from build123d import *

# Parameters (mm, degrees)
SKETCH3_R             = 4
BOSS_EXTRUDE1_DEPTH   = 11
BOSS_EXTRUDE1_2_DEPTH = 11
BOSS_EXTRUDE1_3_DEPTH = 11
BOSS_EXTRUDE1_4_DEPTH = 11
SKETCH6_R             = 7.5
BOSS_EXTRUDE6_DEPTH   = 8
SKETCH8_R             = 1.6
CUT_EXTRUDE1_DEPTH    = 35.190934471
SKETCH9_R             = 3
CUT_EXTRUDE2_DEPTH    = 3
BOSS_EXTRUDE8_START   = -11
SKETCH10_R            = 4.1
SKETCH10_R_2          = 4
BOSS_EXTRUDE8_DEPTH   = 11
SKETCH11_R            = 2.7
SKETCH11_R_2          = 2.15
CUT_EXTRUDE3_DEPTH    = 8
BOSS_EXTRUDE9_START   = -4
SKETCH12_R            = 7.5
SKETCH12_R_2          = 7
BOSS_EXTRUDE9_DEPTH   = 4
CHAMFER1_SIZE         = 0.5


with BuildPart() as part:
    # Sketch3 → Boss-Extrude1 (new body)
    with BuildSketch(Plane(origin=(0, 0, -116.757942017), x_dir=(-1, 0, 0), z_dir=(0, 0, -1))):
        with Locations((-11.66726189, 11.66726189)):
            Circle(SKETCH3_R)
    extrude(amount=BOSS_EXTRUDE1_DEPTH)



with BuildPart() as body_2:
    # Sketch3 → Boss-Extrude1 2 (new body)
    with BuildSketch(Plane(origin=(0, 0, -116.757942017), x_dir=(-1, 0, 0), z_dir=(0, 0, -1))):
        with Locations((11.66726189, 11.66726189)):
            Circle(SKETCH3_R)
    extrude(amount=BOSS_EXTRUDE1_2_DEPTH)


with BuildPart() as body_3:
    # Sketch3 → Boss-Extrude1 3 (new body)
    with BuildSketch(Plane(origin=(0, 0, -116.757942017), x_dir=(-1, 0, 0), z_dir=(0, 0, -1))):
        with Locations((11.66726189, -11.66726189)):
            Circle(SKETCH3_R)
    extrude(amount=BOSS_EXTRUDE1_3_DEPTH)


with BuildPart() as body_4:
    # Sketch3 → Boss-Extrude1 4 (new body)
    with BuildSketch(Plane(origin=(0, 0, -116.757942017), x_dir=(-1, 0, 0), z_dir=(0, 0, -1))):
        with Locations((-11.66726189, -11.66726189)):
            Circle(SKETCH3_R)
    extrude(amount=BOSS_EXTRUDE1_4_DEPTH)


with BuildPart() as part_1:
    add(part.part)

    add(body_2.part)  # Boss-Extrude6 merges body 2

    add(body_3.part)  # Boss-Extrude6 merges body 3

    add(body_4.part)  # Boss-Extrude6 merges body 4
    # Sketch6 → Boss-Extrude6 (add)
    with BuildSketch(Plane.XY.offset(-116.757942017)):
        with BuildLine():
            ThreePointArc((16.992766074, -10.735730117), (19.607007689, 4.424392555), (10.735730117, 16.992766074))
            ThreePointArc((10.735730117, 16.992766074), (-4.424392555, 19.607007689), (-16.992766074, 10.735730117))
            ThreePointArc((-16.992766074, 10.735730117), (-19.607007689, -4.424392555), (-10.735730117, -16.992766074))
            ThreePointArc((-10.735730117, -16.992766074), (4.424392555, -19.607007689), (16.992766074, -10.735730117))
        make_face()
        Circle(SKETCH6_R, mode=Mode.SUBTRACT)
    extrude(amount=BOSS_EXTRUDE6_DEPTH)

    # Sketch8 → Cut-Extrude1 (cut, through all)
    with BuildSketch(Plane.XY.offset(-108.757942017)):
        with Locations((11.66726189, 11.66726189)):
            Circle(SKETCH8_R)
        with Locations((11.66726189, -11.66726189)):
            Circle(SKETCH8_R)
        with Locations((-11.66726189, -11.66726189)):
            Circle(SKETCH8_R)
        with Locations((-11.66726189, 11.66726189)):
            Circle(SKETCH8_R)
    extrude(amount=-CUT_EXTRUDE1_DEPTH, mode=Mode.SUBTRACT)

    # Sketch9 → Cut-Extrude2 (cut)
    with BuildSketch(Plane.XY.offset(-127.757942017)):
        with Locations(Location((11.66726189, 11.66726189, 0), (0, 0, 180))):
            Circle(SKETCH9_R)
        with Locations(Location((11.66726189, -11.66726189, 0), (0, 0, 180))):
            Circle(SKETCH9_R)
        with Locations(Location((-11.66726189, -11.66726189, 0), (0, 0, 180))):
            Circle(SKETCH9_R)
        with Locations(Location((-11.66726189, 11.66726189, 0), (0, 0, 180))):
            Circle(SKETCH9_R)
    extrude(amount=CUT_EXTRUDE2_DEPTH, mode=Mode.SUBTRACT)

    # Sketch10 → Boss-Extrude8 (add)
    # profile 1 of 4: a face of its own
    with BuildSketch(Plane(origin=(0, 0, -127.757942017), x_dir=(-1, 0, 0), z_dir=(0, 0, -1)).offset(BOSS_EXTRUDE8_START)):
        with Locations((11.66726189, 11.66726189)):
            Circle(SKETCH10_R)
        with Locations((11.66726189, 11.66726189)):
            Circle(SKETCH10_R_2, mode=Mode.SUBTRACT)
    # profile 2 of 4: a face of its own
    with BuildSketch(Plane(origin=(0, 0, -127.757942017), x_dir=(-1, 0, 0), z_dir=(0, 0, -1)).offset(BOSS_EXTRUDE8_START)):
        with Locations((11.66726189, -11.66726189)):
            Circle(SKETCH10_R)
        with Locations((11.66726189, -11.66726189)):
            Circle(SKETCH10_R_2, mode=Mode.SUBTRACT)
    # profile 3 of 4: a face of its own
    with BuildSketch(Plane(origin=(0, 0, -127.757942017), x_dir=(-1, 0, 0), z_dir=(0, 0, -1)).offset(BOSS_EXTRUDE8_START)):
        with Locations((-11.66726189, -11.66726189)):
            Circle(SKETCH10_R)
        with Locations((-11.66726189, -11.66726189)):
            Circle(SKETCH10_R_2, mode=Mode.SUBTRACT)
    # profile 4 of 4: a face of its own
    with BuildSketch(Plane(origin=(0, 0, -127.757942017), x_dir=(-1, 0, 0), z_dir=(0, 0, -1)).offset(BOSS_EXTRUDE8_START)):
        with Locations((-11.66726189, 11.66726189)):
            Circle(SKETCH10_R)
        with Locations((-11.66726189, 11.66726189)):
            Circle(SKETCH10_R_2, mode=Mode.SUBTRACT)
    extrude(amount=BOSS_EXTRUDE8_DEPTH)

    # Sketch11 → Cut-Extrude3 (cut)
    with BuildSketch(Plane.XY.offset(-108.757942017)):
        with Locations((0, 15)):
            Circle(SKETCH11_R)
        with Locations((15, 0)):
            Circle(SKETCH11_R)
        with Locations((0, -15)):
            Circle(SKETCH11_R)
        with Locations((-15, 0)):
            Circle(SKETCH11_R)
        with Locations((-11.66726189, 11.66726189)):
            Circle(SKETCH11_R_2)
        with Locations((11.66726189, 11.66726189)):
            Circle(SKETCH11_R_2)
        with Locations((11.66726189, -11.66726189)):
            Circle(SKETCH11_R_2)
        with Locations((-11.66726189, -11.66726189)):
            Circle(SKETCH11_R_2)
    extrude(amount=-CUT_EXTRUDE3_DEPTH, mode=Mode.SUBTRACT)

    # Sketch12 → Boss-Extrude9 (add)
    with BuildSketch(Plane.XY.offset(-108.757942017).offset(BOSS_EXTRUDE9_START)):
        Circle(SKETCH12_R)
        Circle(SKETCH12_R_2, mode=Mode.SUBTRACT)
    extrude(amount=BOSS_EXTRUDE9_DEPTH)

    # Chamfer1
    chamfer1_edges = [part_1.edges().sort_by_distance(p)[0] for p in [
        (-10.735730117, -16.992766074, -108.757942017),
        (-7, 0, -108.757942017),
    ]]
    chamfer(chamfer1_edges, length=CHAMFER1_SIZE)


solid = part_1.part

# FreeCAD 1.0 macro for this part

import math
import FreeCAD as App
import Part
import Sketcher


def edges_at(feature, points):
    """Names of the edges that pass closest to the given points."""
    edges = feature.Shape.Edges
    near = lambda p: min(range(len(edges)), key=lambda i: edges[i].distToShape(Part.Vertex(*p))[0])
    return sorted({f"Edge{near(p) + 1}" for p in points})

doc = App.newDocument("Part")
body = doc.addObject("PartDesign::Body", "Body")

sketch1 = body.newObject("Sketcher::SketchObject", "Sketch")
sketch1.AttachmentSupport = (doc.getObject("XY_Plane"), [""])
sketch1.MapMode = "FlatFace"
sketch1.AttachmentOffset = App.Placement(App.Vector(0, 0, -116.757942), App.Rotation())
sketch1.addGeometry(Part.Circle(App.Vector(11.7, 11.7, 0), App.Vector(0, 0, 1), 4), False)
sketch1.addConstraint([
    Sketcher.Constraint("Diameter", 0, 8.0),
    Sketcher.Constraint("DistanceX", -1, 1, 0, 3, 11.667262),
    Sketcher.Constraint("DistanceY", -1, 1, 0, 3, 11.667262),
])
pad1 = body.newObject("PartDesign::Pad", "Pad")
pad1.Profile = sketch1
pad1.Length = 11
pad1.Reversed = True
body2 = doc.addObject("PartDesign::Body", "Body001")

sketch2 = body2.newObject("Sketcher::SketchObject", "Sketch001")
sketch2.AttachmentSupport = (doc.getObject("XY_Plane001"), [""])
sketch2.MapMode = "FlatFace"
sketch2.AttachmentOffset = App.Placement(App.Vector(0, 0, -116.757942), App.Rotation())
sketch2.addGeometry(Part.Circle(App.Vector(-11.7, 11.7, 0), App.Vector(0, 0, 1), 4), False)
sketch2.addConstraint([
    Sketcher.Constraint("Diameter", 0, 8.0),
    Sketcher.Constraint("DistanceX", 0, 3, -1, 1, 11.667262),
    Sketcher.Constraint("DistanceY", -1, 1, 0, 3, 11.667262),
])
pad2 = body2.newObject("PartDesign::Pad", "Pad001")
pad2.Profile = sketch2
pad2.Length = 11
pad2.Reversed = True
body3 = doc.addObject("PartDesign::Body", "Body002")

sketch3 = body3.newObject("Sketcher::SketchObject", "Sketch002")
sketch3.AttachmentSupport = (doc.getObject("XY_Plane002"), [""])
sketch3.MapMode = "FlatFace"
sketch3.AttachmentOffset = App.Placement(App.Vector(0, 0, -116.757942), App.Rotation())
sketch3.addGeometry(Part.Circle(App.Vector(-11.7, -11.7, 0), App.Vector(0, 0, 1), 4), False)
sketch3.addConstraint([
    Sketcher.Constraint("Diameter", 0, 8.0),
    Sketcher.Constraint("DistanceX", 0, 3, -1, 1, 11.667262),
    Sketcher.Constraint("DistanceY", 0, 3, -1, 1, 11.667262),
])
pad3 = body3.newObject("PartDesign::Pad", "Pad002")
pad3.Profile = sketch3
pad3.Length = 11
pad3.Reversed = True
body4 = doc.addObject("PartDesign::Body", "Body003")

sketch4 = body4.newObject("Sketcher::SketchObject", "Sketch003")
sketch4.AttachmentSupport = (doc.getObject("XY_Plane003"), [""])
sketch4.MapMode = "FlatFace"
sketch4.AttachmentOffset = App.Placement(App.Vector(0, 0, -116.757942), App.Rotation())
sketch4.addGeometry(Part.Circle(App.Vector(11.7, -11.7, 0), App.Vector(0, 0, 1), 4), False)
sketch4.addConstraint([
    Sketcher.Constraint("Diameter", 0, 8.0),
    Sketcher.Constraint("DistanceX", -1, 1, 0, 3, 11.667262),
    Sketcher.Constraint("DistanceY", 0, 3, -1, 1, 11.667262),
])
pad4 = body4.newObject("PartDesign::Pad", "Pad003")
pad4.Profile = sketch4
pad4.Length = 11
pad4.Reversed = True
body.AllowCompound = True
doc.recompute()

boolean = body.newObject("PartDesign::Boolean", "Boolean")
boolean.Type = "Fuse"
boolean.addObjects([body2])
doc.recompute()

boolean2 = body.newObject("PartDesign::Boolean", "Boolean001")
boolean2.Type = "Fuse"
boolean2.addObjects([body3])
doc.recompute()

boolean3 = body.newObject("PartDesign::Boolean", "Boolean002")
boolean3.Type = "Fuse"
boolean3.addObjects([body4])

sketch5 = body.newObject("Sketcher::SketchObject", "Sketch004")
sketch5.AttachmentSupport = (doc.getObject("XY_Plane"), [""])
sketch5.MapMode = "FlatFace"
sketch5.AttachmentOffset = App.Placement(App.Vector(0, 0, -116.757942), App.Rotation())
sketch5.addGeometry([
    Part.ArcOfCircle(Part.Circle(App.Vector(0, 0, 0), App.Vector(0, 0, 1), 20), math.radians(-32), math.radians(58)),
    Part.ArcOfCircle(Part.Circle(App.Vector(0, 0, 0), App.Vector(0, 0, 1), 20), math.radians(58), math.radians(148)),
    Part.ArcOfCircle(Part.Circle(App.Vector(0, 0, 0), App.Vector(0, 0, 1), 20), math.radians(148), math.radians(238)),
    Part.ArcOfCircle(Part.Circle(App.Vector(0, 0, 0), App.Vector(0, 0, 1), 20), math.radians(-122), math.radians(-32)),
    Part.Circle(App.Vector(0, 0, 0), App.Vector(0, 0, 1), 8),
], False)
sketch5.addConstraint([
    Sketcher.Constraint("Tangent", 0, 2, 1, 1),
    Sketcher.Constraint("Tangent", 1, 2, 2, 1),
    Sketcher.Constraint("Tangent", 2, 2, 3, 1),
    Sketcher.Constraint("Tangent", 3, 2, 0, 1),
    Sketcher.Constraint("Coincident", 0, 3, -1, 1),
    Sketcher.Constraint("Coincident", 4, 3, -1, 1),
    Sketcher.Constraint("Equal", 0, 1),
    Sketcher.Constraint("Diameter", 4, 15.0),
    Sketcher.Constraint("Radius", 0, 20.1),
    Sketcher.Constraint("DistanceX", -1, 1, 0, 2, 10.73573),
    Sketcher.Constraint("DistanceY", -1, 1, 1, 2, 10.73573),
    Sketcher.Constraint("DistanceX", 2, 2, -1, 1, 10.73573),
    Sketcher.Constraint("DistanceY", 3, 2, -1, 1, 10.73573),
])
pad5 = body.newObject("PartDesign::Pad", "Pad004")
pad5.Profile = sketch5
pad5.Length = 8

sketch6 = body.newObject("Sketcher::SketchObject", "Sketch005")
sketch6.AttachmentSupport = (doc.getObject("XY_Plane"), [""])
sketch6.MapMode = "FlatFace"
sketch6.AttachmentOffset = App.Placement(App.Vector(0, 0, -108.757942), App.Rotation())
sketch6.addGeometry([
    Part.Circle(App.Vector(11.7, 11.7, 0), App.Vector(0, 0, 1), 1.6),
    Part.Circle(App.Vector(11.7, -11.7, 0), App.Vector(0, 0, 1), 1.6),
    Part.Circle(App.Vector(-11.7, -11.7, 0), App.Vector(0, 0, 1), 1.6),
    Part.Circle(App.Vector(-11.7, 11.7, 0), App.Vector(0, 0, 1), 1.6),
], False)
sketch6.addConstraint([
    Sketcher.Constraint("Equal", 0, 1),
    Sketcher.Constraint("Equal", 1, 2),
    Sketcher.Constraint("Equal", 2, 3),
    Sketcher.Constraint("Symmetric", 0, 3, 2, 3, -1, 1),
    Sketcher.Constraint("Symmetric", 1, 3, 3, 3, -1, 1),
    Sketcher.Constraint("Symmetric", 1, 3, 2, 3, -2),
    Sketcher.Constraint("Diameter", 0, 3.2),
    Sketcher.Constraint("DistanceX", -1, 1, 0, 3, 11.667262),
    Sketcher.Constraint("DistanceY", -1, 1, 0, 3, 11.667262),
])
pocket1 = body.newObject("PartDesign::Pocket", "Pocket")
pocket1.Profile = sketch6
pocket1.Type = "ThroughAll"

sketch7 = body.newObject("Sketcher::SketchObject", "Sketch006")
sketch7.AttachmentSupport = (doc.getObject("XY_Plane"), [""])
sketch7.MapMode = "FlatFace"
sketch7.AttachmentOffset = App.Placement(App.Vector(0, 0, -127.757942), App.Rotation())
sketch7.addGeometry([
    Part.Circle(App.Vector(11.7, 11.7, 0), App.Vector(0, 0, 1), 3),
    Part.Circle(App.Vector(11.7, -11.7, 0), App.Vector(0, 0, 1), 3),
    Part.Circle(App.Vector(-11.7, -11.7, 0), App.Vector(0, 0, 1), 3),
    Part.Circle(App.Vector(-11.7, 11.7, 0), App.Vector(0, 0, 1), 3),
], False)
sketch7.addConstraint([
    Sketcher.Constraint("Equal", 0, 1),
    Sketcher.Constraint("Equal", 1, 2),
    Sketcher.Constraint("Equal", 2, 3),
    Sketcher.Constraint("Symmetric", 0, 3, 2, 3, -1, 1),
    Sketcher.Constraint("Symmetric", 1, 3, 3, 3, -1, 1),
    Sketcher.Constraint("Symmetric", 1, 3, 2, 3, -2),
    Sketcher.Constraint("Diameter", 0, 6.0),
    Sketcher.Constraint("DistanceX", -1, 1, 0, 3, 11.667262),
    Sketcher.Constraint("DistanceY", -1, 1, 0, 3, 11.667262),
])
pocket2 = body.newObject("PartDesign::Pocket", "Pocket001")
pocket2.Profile = sketch7
pocket2.Length = 3
pocket2.Reversed = True

sketch8 = body.newObject("Sketcher::SketchObject", "Sketch007")
sketch8.AttachmentSupport = (doc.getObject("XY_Plane"), [""])
sketch8.MapMode = "FlatFace"
sketch8.AttachmentOffset = App.Placement(App.Vector(0, 0, -116.757942), App.Rotation())
sketch8.addGeometry([
    Part.Circle(App.Vector(-11.7, 11.7, 0), App.Vector(0, 0, 1), 4.1),
    Part.Circle(App.Vector(-11.7, 11.7, 0), App.Vector(0, 0, 1), 4),
    Part.Circle(App.Vector(-11.7, -11.7, 0), App.Vector(0, 0, 1), 4.1),
    Part.Circle(App.Vector(-11.7, -11.7, 0), App.Vector(0, 0, 1), 4),
    Part.Circle(App.Vector(11.7, -11.7, 0), App.Vector(0, 0, 1), 4.1),
    Part.Circle(App.Vector(11.7, -11.7, 0), App.Vector(0, 0, 1), 4),
    Part.Circle(App.Vector(11.7, 11.7, 0), App.Vector(0, 0, 1), 4.1),
    Part.Circle(App.Vector(11.7, 11.7, 0), App.Vector(0, 0, 1), 4),
], False)
sketch8.addConstraint([
    Sketcher.Constraint("Coincident", 1, 3, 0, 3),
    Sketcher.Constraint("Coincident", 3, 3, 2, 3),
    Sketcher.Constraint("Coincident", 5, 3, 4, 3),
    Sketcher.Constraint("Coincident", 7, 3, 6, 3),
    Sketcher.Constraint("Equal", 0, 2),
    Sketcher.Constraint("Equal", 1, 3),
    Sketcher.Constraint("Equal", 2, 4),
    Sketcher.Constraint("Equal", 3, 5),
    Sketcher.Constraint("Equal", 4, 6),
    Sketcher.Constraint("Equal", 5, 7),
    Sketcher.Constraint("Symmetric", 0, 3, 4, 3, -1, 1),
    Sketcher.Constraint("Symmetric", 2, 3, 6, 3, -1, 1),
    Sketcher.Constraint("Symmetric", 2, 3, 4, 3, -2),
    Sketcher.Constraint("Diameter", 1, 8.0),
    Sketcher.Constraint("Diameter", 0, 8.2),
    Sketcher.Constraint("DistanceX", 0, 3, -1, 1, 11.667262),
    Sketcher.Constraint("DistanceY", -1, 1, 0, 3, 11.667262),
])
pad6 = body.newObject("PartDesign::Pad", "Pad005")
pad6.Profile = sketch8
pad6.Length = 11
pad6.Reversed = True

sketch9 = body.newObject("Sketcher::SketchObject", "Sketch008")
sketch9.AttachmentSupport = (doc.getObject("XY_Plane"), [""])
sketch9.MapMode = "FlatFace"
sketch9.AttachmentOffset = App.Placement(App.Vector(0, 0, -108.757942), App.Rotation())
sketch9.addGeometry([
    Part.Circle(App.Vector(0, 15, 0), App.Vector(0, 0, 1), 2.7),
    Part.Circle(App.Vector(15, 0, 0), App.Vector(0, 0, 1), 2.7),
    Part.Circle(App.Vector(0, -15, 0), App.Vector(0, 0, 1), 2.7),
    Part.Circle(App.Vector(-15, 0, 0), App.Vector(0, 0, 1), 2.7),
    Part.Circle(App.Vector(-11.7, 11.7, 0), App.Vector(0, 0, 1), 2.1),
    Part.Circle(App.Vector(11.7, 11.7, 0), App.Vector(0, 0, 1), 2.1),
    Part.Circle(App.Vector(11.7, -11.7, 0), App.Vector(0, 0, 1), 2.1),
    Part.Circle(App.Vector(-11.7, -11.7, 0), App.Vector(0, 0, 1), 2.1),
], False)
sketch9.addConstraint([
    Sketcher.Constraint("Equal", 0, 1),
    Sketcher.Constraint("Equal", 1, 2),
    Sketcher.Constraint("Equal", 2, 3),
    Sketcher.Constraint("Equal", 4, 5),
    Sketcher.Constraint("Equal", 5, 6),
    Sketcher.Constraint("Equal", 6, 7),
    Sketcher.Constraint("Symmetric", 0, 3, 2, 3, -1, 1),
    Sketcher.Constraint("Symmetric", 1, 3, 3, 3, -1, 1),
    Sketcher.Constraint("Symmetric", 4, 3, 6, 3, -1, 1),
    Sketcher.Constraint("Symmetric", 5, 3, 7, 3, -1, 1),
    Sketcher.Constraint("Symmetric", 4, 3, 5, 3, -2),
    Sketcher.Constraint("PointOnObject", 0, 3, -2),
    Sketcher.Constraint("PointOnObject", 1, 3, -1),
    Sketcher.Constraint("Diameter", 0, 5.4),
    Sketcher.Constraint("Diameter", 4, 4.3),
    Sketcher.Constraint("DistanceY", -1, 1, 0, 3, 15.0),
    Sketcher.Constraint("DistanceX", -1, 1, 1, 3, 15.0),
    Sketcher.Constraint("DistanceX", 4, 3, -1, 1, 11.667262),
    Sketcher.Constraint("DistanceY", -1, 1, 4, 3, 11.667262),
])
pocket3 = body.newObject("PartDesign::Pocket", "Pocket002")
pocket3.Profile = sketch9
pocket3.Length = 8

sketch10 = body.newObject("Sketcher::SketchObject", "Sketch009")
sketch10.AttachmentSupport = (doc.getObject("XY_Plane"), [""])
sketch10.MapMode = "FlatFace"
sketch10.AttachmentOffset = App.Placement(App.Vector(0, 0, -112.757942), App.Rotation())
sketch10.addGeometry([
    Part.Circle(App.Vector(0, 0, 0), App.Vector(0, 0, 1), 8),
    Part.Circle(App.Vector(0, 0, 0), App.Vector(0, 0, 1), 7),
], False)
sketch10.addConstraint([
    Sketcher.Constraint("Coincident", 0, 3, -1, 1),
    Sketcher.Constraint("Coincident", 1, 3, -1, 1),
    Sketcher.Constraint("Diameter", 0, 15.0),
    Sketcher.Constraint("Diameter", 1, 14.0),
])
pad7 = body.newObject("PartDesign::Pad", "Pad006")
pad7.Profile = sketch10
pad7.Length = 4
doc.recompute()

chamfer = body.newObject("PartDesign::Chamfer", "Chamfer")
chamfer.Base = (pad7, edges_at(pad7, [(-19.607, -4.424, -108.758), (-7, 0, -108.758)]))
chamfer.Size = 0.5

doc.recompute()
